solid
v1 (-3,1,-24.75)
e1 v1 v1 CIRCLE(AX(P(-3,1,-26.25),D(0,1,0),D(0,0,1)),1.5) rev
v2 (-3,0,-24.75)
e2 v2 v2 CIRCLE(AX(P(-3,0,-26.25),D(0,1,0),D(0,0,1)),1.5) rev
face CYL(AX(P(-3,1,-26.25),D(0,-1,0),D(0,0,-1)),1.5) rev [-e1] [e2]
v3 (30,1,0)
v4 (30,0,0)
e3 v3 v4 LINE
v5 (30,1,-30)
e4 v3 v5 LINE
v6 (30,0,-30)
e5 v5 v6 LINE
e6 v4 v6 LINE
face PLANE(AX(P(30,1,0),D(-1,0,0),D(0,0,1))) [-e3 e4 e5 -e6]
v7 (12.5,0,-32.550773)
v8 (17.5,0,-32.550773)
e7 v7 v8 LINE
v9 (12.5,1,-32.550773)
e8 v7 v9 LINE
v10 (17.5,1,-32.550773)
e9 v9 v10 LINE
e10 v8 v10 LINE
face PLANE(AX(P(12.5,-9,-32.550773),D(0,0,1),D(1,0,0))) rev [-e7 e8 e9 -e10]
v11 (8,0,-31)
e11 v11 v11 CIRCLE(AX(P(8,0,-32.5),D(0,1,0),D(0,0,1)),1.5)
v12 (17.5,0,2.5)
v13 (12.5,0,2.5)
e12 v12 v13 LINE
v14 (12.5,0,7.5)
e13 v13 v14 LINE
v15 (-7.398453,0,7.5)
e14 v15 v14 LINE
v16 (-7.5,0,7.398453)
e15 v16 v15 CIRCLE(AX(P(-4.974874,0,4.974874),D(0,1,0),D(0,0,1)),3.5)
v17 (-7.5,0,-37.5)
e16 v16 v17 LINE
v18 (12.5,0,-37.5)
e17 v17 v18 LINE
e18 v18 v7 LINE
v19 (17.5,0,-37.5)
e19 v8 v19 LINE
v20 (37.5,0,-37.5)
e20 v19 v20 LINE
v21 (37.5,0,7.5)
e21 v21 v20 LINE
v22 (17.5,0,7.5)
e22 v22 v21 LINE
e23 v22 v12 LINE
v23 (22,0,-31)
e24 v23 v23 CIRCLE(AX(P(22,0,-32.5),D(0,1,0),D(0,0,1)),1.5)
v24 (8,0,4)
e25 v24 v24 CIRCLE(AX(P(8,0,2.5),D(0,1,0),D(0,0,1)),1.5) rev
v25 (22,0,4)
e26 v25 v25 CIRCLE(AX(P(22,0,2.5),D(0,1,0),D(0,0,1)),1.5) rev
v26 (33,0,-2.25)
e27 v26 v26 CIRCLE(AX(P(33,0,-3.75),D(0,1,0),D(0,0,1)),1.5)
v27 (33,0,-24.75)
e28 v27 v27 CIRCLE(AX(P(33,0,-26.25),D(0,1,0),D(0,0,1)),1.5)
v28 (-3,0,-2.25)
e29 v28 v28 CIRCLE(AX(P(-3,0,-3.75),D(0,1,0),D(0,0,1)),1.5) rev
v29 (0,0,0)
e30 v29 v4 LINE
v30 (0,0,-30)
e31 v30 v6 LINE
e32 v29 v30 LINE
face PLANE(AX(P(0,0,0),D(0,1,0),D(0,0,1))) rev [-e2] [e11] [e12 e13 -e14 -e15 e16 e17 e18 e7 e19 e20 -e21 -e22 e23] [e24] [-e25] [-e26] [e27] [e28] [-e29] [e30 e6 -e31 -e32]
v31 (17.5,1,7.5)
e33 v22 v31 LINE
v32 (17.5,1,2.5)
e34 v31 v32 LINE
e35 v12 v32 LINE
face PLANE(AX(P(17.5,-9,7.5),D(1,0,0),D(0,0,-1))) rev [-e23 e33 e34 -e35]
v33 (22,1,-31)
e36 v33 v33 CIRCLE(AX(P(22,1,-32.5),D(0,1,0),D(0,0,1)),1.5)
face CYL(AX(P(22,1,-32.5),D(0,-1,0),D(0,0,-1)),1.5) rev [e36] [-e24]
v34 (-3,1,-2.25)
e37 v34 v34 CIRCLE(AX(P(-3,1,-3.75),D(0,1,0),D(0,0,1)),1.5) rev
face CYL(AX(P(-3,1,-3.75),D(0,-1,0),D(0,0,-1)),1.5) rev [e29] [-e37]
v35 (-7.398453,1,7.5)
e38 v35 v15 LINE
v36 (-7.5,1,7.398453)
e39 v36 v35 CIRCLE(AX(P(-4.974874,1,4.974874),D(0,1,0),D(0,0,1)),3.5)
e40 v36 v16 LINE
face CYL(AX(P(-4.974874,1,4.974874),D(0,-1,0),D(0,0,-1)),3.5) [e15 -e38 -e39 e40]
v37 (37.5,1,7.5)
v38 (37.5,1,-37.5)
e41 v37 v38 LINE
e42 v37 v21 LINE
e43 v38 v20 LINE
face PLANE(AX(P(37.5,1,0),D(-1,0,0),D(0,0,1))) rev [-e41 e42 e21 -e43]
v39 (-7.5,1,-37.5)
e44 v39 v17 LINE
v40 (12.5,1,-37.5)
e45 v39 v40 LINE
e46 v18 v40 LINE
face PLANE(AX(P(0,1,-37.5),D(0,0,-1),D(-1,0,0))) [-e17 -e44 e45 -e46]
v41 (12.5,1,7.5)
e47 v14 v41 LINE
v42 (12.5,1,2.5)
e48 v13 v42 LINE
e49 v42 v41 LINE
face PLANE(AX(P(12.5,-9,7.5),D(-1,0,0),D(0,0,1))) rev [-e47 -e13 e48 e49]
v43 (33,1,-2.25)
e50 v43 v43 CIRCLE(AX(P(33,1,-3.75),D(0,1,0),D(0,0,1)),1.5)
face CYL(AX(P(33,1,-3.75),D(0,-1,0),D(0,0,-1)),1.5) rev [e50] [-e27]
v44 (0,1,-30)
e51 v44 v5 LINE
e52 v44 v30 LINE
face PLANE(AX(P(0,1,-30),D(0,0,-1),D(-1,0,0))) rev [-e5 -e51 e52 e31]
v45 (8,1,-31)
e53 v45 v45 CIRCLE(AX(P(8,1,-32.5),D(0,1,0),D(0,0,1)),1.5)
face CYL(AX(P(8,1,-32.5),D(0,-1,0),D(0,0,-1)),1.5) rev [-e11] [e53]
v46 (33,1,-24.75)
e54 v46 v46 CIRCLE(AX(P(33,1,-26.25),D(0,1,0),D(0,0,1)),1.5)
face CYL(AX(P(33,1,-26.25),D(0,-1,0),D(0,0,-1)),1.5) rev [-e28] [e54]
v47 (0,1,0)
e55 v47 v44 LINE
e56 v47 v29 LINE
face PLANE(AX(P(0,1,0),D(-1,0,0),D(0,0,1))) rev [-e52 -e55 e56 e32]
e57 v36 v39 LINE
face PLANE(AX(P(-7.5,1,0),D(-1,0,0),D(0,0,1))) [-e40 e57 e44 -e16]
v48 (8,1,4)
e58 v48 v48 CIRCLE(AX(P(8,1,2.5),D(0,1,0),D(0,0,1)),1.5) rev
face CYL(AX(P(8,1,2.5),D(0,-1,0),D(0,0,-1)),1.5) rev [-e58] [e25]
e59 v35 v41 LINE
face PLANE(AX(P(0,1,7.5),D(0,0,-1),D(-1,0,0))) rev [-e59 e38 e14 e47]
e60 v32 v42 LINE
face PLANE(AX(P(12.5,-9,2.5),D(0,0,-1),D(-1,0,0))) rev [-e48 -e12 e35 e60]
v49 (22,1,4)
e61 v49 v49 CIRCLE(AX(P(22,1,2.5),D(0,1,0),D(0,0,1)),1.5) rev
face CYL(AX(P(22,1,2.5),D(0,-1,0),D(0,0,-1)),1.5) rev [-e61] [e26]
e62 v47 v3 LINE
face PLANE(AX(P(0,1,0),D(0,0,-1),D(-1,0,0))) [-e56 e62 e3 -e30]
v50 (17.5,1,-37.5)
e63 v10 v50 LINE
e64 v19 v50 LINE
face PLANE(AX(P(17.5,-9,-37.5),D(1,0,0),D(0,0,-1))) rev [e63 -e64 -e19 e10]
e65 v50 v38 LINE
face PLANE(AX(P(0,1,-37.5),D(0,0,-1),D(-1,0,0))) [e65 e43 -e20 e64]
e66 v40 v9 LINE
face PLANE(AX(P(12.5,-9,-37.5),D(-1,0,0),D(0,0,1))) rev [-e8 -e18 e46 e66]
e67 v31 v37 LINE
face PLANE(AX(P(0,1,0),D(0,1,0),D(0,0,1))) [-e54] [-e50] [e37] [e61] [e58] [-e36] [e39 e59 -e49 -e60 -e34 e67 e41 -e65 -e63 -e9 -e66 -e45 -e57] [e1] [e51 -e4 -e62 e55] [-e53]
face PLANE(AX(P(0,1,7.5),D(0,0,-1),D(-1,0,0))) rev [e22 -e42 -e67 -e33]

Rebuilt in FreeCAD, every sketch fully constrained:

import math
import FreeCAD as App
import Part
import Sketcher
from FreeCAD import Vector

doc = App.newDocument("Part")
body = doc.addObject("PartDesign::Body", "Body")

# Sketch on XZ plane
sketch1 = body.newObject("Sketcher::SketchObject", "Sketch")
sketch1.AttachmentSupport = (doc.getObject("XZ_Plane"), [""])
sketch1.MapMode = "FlatFace"
sketch1.addGeometry([
    Part.ArcOfCircle(Part.Circle(Vector(-4.97, 4.97, 0), Vector(0, 0, 1), 3.5), math.radians(133.82), math.radians(136.18)),  # 0
    Part.LineSegment(Vector(-7.4, 7.5, 0), Vector(37.5, 7.5, 0)),  # 1
    Part.LineSegment(Vector(37.5, 7.5, 0), Vector(37.5, -37.5, 0)),  # 2
    Part.LineSegment(Vector(37.5, -37.5, 0), Vector(-7.5, -37.5, 0)),  # 3
    Part.LineSegment(Vector(-7.5, -37.5, 0), Vector(-7.5, 7.4, 0)),  # 4
    Part.Circle(Vector(-3, -3.75, 0), Vector(0, 0, 1), 1.5),  # 5
    Part.Circle(Vector(8, 2.5, 0), Vector(0, 0, 1), 1.5),  # 6
    Part.Circle(Vector(22, 2.5, 0), Vector(0, 0, 1), 1.5),  # 7
    Part.Circle(Vector(33, -3.75, 0), Vector(0, 0, 1), 1.5),  # 8
    Part.Circle(Vector(-3, -26.25, 0), Vector(0, 0, 1), 1.5),  # 9
    Part.Circle(Vector(8, -32.5, 0), Vector(0, 0, 1), 1.5),  # 10
    Part.LineSegment(Vector(30, 0, 0), Vector(0, 0, 0)),  # 11
    Part.LineSegment(Vector(0, 0, 0), Vector(0, -30, 0)),  # 12
    Part.LineSegment(Vector(0, -30, 0), Vector(30, -30, 0)),  # 13
    Part.LineSegment(Vector(30, -30, 0), Vector(30, 0, 0)),  # 14
    Part.Circle(Vector(22, -32.5, 0), Vector(0, 0, 1), 1.5),  # 15
    Part.Circle(Vector(33, -26.25, 0), Vector(0, 0, 1), 1.5),  # 16
], False)
sketch1.addConstraint([
    Sketcher.Constraint("Coincident", 0, 1, 1, 1),
    Sketcher.Constraint("Coincident", 1, 2, 2, 1),
    Sketcher.Constraint("Coincident", 2, 2, 3, 1),
    Sketcher.Constraint("Coincident", 3, 2, 4, 1),
    Sketcher.Constraint("Coincident", 4, 2, 0, 2),
    Sketcher.Constraint("Coincident", 11, 2, 12, 1),
    Sketcher.Constraint("Coincident", 12, 2, 13, 1),
    Sketcher.Constraint("Coincident", 13, 2, 14, 1),
    Sketcher.Constraint("Coincident", 14, 2, 11, 1),
    Sketcher.Constraint("Horizontal", 1),
    Sketcher.Constraint("Vertical", 2),
    Sketcher.Constraint("Horizontal", 3),
    Sketcher.Constraint("Vertical", 4),
    Sketcher.Constraint("Horizontal", 11),
    Sketcher.Constraint("Vertical", 12),
    Sketcher.Constraint("Horizontal", 13),
    Sketcher.Constraint("Vertical", 14),
    Sketcher.Constraint("Coincident", 11, 2, -1, 1),
    Sketcher.Constraint("Equal", 5, 6),
    Sketcher.Constraint("Equal", 6, 7),
    Sketcher.Constraint("Equal", 7, 8),
    Sketcher.Constraint("Equal", 8, 9),
    Sketcher.Constraint("Equal", 9, 10),
    Sketcher.Constraint("Equal", 10, 15),
    Sketcher.Constraint("Equal", 15, 16),
    Sketcher.Constraint("Horizontal", 6, 3, 7, 3),
    Sketcher.Constraint("Horizontal", 5, 3, 8, 3),
    Sketcher.Constraint("Horizontal", 10, 3, 15, 3),
    Sketcher.Constraint("Horizontal", 9, 3, 16, 3),
    Sketcher.Constraint("Vertical", 5, 3, 9, 3),
    Sketcher.Constraint("Vertical", 6, 3, 10, 3),
    Sketcher.Constraint("Vertical", 7, 3, 15, 3),
    Sketcher.Constraint("Vertical", 8, 3, 16, 3),
    Sketcher.Constraint("Equal", 3, 2),
    Sketcher.Constraint("Equal", 1, 4),
    Sketcher.Constraint("Equal", 13, 12),
    Sketcher.Constraint("Diameter", 5, 3.0),
    Sketcher.Constraint("Radius", 0, 3.500001),
    Sketcher.Constraint("DistanceX", 3, 2, 3, 1, 45.0),
    Sketcher.Constraint("DistanceX", 11, 2, 11, 1, 30.0),
    Sketcher.Constraint("DistanceX", 5, 3, -1, 1, 3.0),
    Sketcher.Constraint("DistanceX", -1, 1, 6, 3, 8.0),
    Sketcher.Constraint("DistanceX", -1, 1, 7, 3, 22.0),
    Sketcher.Constraint("DistanceX", -1, 1, 8, 3, 33.0),
    Sketcher.Constraint("DistanceY", 10, 3, 6, 3, 35.0),
    Sketcher.Constraint("DistanceY", 6, 3, 0, 1, 5.0),
    Sketcher.Constraint("DistanceY", -1, 1, 6, 3, 2.5),
    Sketcher.Constraint("DistanceX", -1, 1, 1, 2, 37.5),
    Sketcher.Constraint("DistanceY", 9, 3, 5, 3, 22.5),
    Sketcher.Constraint("DistanceY", 5, 3, -1, 1, 3.75),
    Sketcher.Constraint("DistanceX", 1, 1, 1, 2, 44.898453),
])
pad1 = body.newObject("PartDesign::Pad", "Pad")
pad1.Profile = sketch1
pad1.Length = 1
pad1.Reversed = True

# Sketch on XZ plane
sketch2 = body.newObject("Sketcher::SketchObject", "Sketch001")
sketch2.AttachmentSupport = (doc.getObject("XZ_Plane"), [""])
sketch2.MapMode = "FlatFace"
sketch2.AttachmentOffset = App.Placement(Vector(0, 0, -1), App.Rotation())
sketch2.addGeometry([
    Part.LineSegment(Vector(12.5, -37.5, 0), Vector(12.5, -32.6, 0)),  # 0
    Part.LineSegment(Vector(12.5, -32.6, 0), Vector(17.5, -32.6, 0)),  # 1
    Part.LineSegment(Vector(17.5, -32.6, 0), Vector(17.5, -37.5, 0)),  # 2
    Part.LineSegment(Vector(17.5, -37.5, 0), Vector(12.5, -37.5, 0)),  # 3
    Part.LineSegment(Vector(12.5, 2.5, 0), Vector(12.5, 7.5, 0)),  # 4
    Part.LineSegment(Vector(12.5, 7.5, 0), Vector(17.5, 7.5, 0)),  # 5
    Part.LineSegment(Vector(17.5, 7.5, 0), Vector(17.5, 2.5, 0)),  # 6
    Part.LineSegment(Vector(17.5, 2.5, 0), Vector(12.5, 2.5, 0)),  # 7
], False)
sketch2.addConstraint([
    Sketcher.Constraint("Coincident", 0, 2, 1, 1),
    Sketcher.Constraint("Coincident", 1, 2, 2, 1),
    Sketcher.Constraint("Coincident", 2, 2, 3, 1),
    Sketcher.Constraint("Coincident", 3, 2, 0, 1),
    Sketcher.Constraint("Coincident", 4, 2, 5, 1),
    Sketcher.Constraint("Coincident", 5, 2, 6, 1),
    Sketcher.Constraint("Coincident", 6, 2, 7, 1),
    Sketcher.Constraint("Coincident", 7, 2, 4, 1),
    Sketcher.Constraint("Vertical", 0),
    Sketcher.Constraint("Horizontal", 1),
    Sketcher.Constraint("Vertical", 2),
    Sketcher.Constraint("Horizontal", 3),
    Sketcher.Constraint("Vertical", 4),
    Sketcher.Constraint("Horizontal", 5),
    Sketcher.Constraint("Vertical", 6),
    Sketcher.Constraint("Horizontal", 7),
    Sketcher.Constraint("Vertical", 3, 2, 4, 2),
    Sketcher.Constraint("Vertical", 2, 2, 5, 2),
    Sketcher.Constraint("Equal", 7, 4),
    Sketcher.Constraint("DistanceX", 1, 1, 1, 2, 5.0),
    Sketcher.Constraint("DistanceY", 3, 2, 4, 2, 45.0),
    Sketcher.Constraint("DistanceX", -1, 1, 0, 2, 12.5),
    Sketcher.Constraint("DistanceY", 2, 2, -1, 1, 37.5),
    Sketcher.Constraint("DistanceY", 0, 1, 0, 2, 4.949227),
])
pocket1 = body.newObject("PartDesign::Pocket", "Pocket")
pocket1.Profile = sketch2
pocket1.Length = 10
pocket1.Reversed = True

doc.recompute()
